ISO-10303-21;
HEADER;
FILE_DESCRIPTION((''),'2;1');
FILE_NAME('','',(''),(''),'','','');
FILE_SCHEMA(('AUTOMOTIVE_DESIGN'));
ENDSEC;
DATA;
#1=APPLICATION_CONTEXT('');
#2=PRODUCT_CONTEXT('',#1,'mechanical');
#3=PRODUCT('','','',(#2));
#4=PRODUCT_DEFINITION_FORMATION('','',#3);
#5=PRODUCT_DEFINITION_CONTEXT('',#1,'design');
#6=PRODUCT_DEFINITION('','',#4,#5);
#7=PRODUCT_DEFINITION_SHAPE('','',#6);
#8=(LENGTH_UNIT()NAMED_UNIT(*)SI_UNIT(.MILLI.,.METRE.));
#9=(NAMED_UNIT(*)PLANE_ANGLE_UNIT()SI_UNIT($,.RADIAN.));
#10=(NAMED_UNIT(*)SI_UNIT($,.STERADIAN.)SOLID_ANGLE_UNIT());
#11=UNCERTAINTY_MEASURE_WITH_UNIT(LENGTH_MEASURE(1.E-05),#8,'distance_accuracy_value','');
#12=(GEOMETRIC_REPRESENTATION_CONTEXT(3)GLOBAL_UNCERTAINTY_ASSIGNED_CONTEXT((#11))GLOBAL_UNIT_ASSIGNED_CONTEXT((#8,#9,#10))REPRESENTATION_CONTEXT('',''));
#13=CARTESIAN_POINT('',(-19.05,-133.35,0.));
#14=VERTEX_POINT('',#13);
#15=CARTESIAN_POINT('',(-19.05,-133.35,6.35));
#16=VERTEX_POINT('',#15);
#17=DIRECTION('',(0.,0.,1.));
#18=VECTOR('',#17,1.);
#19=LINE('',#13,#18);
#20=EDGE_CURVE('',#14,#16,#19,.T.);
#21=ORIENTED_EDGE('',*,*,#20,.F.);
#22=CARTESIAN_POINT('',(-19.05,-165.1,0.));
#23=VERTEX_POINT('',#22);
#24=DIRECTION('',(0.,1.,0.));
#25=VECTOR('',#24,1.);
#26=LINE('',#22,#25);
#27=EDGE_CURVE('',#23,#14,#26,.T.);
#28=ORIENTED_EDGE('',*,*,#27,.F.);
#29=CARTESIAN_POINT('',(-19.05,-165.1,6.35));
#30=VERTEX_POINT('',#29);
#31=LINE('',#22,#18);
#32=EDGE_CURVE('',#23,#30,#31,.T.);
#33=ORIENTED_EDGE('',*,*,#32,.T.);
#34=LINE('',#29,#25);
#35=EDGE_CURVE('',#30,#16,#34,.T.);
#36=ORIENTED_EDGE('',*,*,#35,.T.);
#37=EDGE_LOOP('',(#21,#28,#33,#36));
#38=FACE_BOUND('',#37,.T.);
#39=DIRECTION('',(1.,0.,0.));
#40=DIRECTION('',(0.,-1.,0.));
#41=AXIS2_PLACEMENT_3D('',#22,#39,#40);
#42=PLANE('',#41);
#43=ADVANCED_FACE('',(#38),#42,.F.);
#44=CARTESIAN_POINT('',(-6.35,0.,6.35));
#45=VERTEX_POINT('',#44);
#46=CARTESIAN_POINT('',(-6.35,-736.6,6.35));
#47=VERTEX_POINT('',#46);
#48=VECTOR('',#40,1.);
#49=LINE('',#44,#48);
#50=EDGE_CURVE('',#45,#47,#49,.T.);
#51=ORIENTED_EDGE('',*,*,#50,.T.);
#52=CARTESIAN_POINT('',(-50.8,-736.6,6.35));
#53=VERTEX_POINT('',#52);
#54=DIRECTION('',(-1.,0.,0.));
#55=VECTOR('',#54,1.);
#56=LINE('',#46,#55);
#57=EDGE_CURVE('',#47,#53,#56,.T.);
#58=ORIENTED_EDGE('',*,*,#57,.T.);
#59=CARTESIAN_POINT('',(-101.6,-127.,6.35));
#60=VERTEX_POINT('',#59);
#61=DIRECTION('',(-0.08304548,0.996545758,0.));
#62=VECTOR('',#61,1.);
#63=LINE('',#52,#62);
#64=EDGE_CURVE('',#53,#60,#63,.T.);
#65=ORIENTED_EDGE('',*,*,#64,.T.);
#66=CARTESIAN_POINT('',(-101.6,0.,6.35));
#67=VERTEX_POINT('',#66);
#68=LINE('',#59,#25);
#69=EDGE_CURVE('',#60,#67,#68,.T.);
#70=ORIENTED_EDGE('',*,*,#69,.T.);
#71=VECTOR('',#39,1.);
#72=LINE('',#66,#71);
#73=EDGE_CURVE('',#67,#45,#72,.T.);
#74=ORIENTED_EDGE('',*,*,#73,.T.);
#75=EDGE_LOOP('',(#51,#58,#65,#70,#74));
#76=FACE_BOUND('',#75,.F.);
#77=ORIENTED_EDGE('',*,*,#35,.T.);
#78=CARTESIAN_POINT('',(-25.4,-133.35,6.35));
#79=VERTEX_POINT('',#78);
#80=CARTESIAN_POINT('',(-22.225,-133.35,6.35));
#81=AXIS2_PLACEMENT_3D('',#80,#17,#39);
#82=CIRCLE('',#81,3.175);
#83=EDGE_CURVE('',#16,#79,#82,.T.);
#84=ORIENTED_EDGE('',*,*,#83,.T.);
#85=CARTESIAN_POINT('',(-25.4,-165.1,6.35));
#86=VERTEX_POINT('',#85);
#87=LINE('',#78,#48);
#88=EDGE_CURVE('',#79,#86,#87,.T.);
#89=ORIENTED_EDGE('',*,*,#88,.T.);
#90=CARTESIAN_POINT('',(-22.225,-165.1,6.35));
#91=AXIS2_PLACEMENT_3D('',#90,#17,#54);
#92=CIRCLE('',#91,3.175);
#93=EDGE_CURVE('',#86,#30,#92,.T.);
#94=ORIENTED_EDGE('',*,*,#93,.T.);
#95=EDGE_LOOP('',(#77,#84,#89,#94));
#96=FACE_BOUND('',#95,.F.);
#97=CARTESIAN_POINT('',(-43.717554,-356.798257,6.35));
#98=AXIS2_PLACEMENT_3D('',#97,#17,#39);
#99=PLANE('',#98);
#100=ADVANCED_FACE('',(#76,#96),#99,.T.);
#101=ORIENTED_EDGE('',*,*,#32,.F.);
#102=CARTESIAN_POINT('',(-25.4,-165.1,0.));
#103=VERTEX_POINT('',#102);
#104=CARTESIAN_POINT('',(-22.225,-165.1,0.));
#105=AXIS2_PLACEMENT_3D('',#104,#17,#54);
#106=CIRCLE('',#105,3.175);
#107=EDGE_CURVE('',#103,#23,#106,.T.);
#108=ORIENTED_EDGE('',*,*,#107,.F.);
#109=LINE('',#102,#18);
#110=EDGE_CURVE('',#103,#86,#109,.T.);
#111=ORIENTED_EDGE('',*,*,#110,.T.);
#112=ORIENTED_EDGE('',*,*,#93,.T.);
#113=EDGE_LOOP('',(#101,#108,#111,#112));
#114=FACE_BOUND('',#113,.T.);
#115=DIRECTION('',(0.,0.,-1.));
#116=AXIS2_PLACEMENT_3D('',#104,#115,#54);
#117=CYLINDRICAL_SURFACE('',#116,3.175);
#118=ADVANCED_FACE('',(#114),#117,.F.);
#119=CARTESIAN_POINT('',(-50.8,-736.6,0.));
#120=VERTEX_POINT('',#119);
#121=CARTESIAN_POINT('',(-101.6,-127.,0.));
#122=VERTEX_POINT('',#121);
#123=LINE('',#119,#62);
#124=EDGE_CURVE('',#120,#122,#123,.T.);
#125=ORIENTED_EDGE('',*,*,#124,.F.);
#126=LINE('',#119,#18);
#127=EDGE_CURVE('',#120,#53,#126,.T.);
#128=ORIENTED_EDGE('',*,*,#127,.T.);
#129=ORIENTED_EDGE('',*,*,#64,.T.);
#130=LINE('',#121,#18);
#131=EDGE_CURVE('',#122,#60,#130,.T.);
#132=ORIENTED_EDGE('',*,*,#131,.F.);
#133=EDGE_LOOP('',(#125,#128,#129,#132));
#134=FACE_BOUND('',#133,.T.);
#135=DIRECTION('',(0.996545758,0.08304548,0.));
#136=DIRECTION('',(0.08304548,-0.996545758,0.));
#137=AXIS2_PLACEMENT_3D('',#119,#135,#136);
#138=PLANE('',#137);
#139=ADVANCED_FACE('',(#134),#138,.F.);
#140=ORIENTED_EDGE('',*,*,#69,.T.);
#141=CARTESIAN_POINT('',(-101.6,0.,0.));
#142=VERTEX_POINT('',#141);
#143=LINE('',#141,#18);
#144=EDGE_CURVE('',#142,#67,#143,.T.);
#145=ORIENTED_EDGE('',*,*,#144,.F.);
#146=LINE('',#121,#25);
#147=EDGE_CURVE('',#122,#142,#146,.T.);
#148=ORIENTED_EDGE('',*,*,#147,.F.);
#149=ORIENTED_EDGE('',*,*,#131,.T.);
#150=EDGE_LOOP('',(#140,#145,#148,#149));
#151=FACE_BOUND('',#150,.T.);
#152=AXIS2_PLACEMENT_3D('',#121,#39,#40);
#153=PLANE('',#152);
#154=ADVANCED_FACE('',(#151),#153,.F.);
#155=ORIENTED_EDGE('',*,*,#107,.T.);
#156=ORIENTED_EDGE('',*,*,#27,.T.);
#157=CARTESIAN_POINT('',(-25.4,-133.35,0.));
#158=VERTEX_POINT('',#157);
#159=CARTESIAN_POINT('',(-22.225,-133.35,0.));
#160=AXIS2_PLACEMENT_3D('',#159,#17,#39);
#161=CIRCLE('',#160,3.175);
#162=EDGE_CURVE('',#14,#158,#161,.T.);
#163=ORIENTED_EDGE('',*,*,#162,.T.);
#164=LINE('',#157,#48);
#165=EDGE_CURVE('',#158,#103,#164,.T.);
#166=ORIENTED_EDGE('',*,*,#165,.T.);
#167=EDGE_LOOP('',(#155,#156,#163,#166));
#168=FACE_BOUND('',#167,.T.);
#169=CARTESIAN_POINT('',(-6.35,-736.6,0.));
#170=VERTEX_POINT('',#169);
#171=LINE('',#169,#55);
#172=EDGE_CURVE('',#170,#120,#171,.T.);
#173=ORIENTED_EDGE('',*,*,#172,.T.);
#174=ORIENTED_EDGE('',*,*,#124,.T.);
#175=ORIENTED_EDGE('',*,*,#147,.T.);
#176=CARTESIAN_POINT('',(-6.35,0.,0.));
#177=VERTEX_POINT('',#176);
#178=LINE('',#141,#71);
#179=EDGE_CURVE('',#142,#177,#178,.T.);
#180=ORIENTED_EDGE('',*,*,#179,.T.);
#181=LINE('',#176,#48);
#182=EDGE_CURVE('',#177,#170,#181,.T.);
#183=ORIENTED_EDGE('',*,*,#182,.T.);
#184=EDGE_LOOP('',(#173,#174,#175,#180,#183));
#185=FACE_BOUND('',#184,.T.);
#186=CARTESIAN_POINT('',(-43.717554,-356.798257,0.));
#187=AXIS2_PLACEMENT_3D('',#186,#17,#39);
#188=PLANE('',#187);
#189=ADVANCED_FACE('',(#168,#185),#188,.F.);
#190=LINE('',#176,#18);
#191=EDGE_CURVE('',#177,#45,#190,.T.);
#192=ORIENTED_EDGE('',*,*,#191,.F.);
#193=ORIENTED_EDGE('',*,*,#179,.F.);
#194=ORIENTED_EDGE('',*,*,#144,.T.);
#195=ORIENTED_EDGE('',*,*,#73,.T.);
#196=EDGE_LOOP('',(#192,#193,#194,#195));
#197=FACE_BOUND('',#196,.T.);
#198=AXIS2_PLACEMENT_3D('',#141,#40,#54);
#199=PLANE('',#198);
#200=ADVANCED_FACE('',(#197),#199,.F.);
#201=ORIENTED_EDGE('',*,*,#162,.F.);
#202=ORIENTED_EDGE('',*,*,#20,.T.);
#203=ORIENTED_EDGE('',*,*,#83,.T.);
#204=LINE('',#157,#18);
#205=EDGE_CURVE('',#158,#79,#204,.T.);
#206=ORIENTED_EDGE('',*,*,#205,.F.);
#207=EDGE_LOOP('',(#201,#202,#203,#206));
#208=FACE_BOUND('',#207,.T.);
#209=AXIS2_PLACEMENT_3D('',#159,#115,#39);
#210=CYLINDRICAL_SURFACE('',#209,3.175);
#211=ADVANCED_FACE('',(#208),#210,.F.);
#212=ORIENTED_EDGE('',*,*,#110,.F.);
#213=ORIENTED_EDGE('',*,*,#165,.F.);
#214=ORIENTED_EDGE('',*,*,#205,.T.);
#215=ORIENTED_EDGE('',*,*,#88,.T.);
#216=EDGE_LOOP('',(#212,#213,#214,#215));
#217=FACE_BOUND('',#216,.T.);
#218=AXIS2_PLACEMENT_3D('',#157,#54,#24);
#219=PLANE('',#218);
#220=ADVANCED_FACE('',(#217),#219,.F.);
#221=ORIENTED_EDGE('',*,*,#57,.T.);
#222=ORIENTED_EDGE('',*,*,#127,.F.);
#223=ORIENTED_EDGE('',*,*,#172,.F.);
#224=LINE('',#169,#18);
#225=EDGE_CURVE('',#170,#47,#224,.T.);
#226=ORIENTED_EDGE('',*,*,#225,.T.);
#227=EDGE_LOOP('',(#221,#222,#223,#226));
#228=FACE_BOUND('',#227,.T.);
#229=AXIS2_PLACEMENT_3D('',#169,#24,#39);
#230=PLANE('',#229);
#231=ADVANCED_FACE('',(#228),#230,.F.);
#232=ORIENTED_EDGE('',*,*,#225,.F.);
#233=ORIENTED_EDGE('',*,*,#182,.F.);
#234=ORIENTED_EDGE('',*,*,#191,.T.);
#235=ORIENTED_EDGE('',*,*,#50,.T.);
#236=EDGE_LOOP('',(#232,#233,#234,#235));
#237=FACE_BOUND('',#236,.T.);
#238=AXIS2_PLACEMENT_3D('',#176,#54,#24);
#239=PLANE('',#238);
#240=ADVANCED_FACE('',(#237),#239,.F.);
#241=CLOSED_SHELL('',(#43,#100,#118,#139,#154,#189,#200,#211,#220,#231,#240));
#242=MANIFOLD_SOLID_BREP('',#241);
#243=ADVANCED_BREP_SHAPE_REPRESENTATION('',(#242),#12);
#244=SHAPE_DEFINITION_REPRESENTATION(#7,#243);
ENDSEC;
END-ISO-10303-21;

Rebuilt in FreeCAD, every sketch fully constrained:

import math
import FreeCAD as App
import Part
import Sketcher

V = App.Vector
Q = App.Units.Quantity

doc = App.newDocument("Part")
body = doc.addObject("PartDesign::Body", "Body")

# Sketch on XY plane
sketch1 = body.newObject("Sketcher::SketchObject", "Sketch")
sketch1.AttachmentSupport = (doc.getObject("XY_Plane"), [""])
sketch1.MapMode = "FlatFace"
sketch1.addGeometry([
    Part.LineSegment(V(101.6, 0, 0), V(6.3, 0, 0)),  # 0
    Part.LineSegment(V(6.3, 0, 0), V(6.3, -736.6, 0)),  # 1
    Part.LineSegment(V(6.3, -736.6, 0), V(50.8, -736.6, 0)),  # 2
    Part.LineSegment(V(50.8, -736.6, 0), V(101.6, -127, 0)),  # 3
    Part.LineSegment(V(101.6, -127, 0), V(101.6, 0, 0)),  # 4
    Part.LineSegment(V(19.1, -165.1, 0), V(19.1, -133.3, 0)),  # 5
    Part.ArcOfCircle(Part.Circle(V(22.2, -133.3, 0), V(0, 0, 1), 3.2), math.radians(0), math.radians(180)),  # 6
    Part.LineSegment(V(25.4, -133.3, 0), V(25.4, -165.1, 0)),  # 7
    Part.ArcOfCircle(Part.Circle(V(22.2, -165.1, 0), V(0, 0, 1), 3.2), math.radians(180), math.radians(360)),  # 8
], False)
sketch1.addConstraint([
    Sketcher.Constraint("Coincident", 0, 2, 1, 1),
    Sketcher.Constraint("Coincident", 1, 2, 2, 1),
    Sketcher.Constraint("Coincident", 2, 2, 3, 1),
    Sketcher.Constraint("Coincident", 3, 2, 4, 1),
    Sketcher.Constraint("Coincident", 4, 2, 0, 1),
    Sketcher.Constraint("Tangent", 5, 2, 6, 2),
    Sketcher.Constraint("Tangent", 6, 1, 7, 1),
    Sketcher.Constraint("Tangent", 7, 2, 8, 2),
    Sketcher.Constraint("Tangent", 8, 1, 5, 1),
    Sketcher.Constraint("Horizontal", 0),
    Sketcher.Constraint("Vertical", 1),
    Sketcher.Constraint("Horizontal", 2),
    Sketcher.Constraint("Vertical", 4),
    Sketcher.Constraint("Vertical", 5),
    Sketcher.Constraint("Vertical", 7),
    Sketcher.Constraint("PointOnObject", 0, 2, -1),
    Sketcher.Constraint("DistanceY", 1, 2, 1, 1, Q("29 in")),
    Sketcher.Constraint("DistanceY", 4, 1, 4, 2, Q("5 in")),
    Sketcher.Constraint("DistanceX", -1, 1, 2, 2, Q("2 in")),
    Sketcher.Constraint("DistanceX", -1, 1, 3, 2, Q("4 in")),
    Sketcher.Constraint("DistanceX", -1, 1, 6, 1, Q("1 in")),
    Sketcher.Constraint("Radius", 6, Q("0.125 in")),
    Sketcher.Constraint("DistanceX", 0, 2, 0, 1, Q("3.75 in")),
    Sketcher.Constraint("DistanceY", 5, 1, 5, 2, Q("1.25 in")),
    Sketcher.Constraint("DistanceY", 8, 3, -1, 1, Q("6.5 in")),
])
pad1 = body.newObject("PartDesign::Pad", "Pad")
pad1.Profile = sketch1
pad1.Length = Q("0.25 in")
body2 = doc.addObject("PartDesign::Body", "Body001")
doc.recompute()

mirroring = doc.addObject("Part::Mirroring", "Mirroring")
mirroring.Source = body
mirroring.Base = V(0, 0, 0)
mirroring.Normal = V(1, 0, 0)
body2.BaseFeature = mirroring
doc.recompute()
body.Visibility = False
mirroring.Visibility = False

doc.recompute()
